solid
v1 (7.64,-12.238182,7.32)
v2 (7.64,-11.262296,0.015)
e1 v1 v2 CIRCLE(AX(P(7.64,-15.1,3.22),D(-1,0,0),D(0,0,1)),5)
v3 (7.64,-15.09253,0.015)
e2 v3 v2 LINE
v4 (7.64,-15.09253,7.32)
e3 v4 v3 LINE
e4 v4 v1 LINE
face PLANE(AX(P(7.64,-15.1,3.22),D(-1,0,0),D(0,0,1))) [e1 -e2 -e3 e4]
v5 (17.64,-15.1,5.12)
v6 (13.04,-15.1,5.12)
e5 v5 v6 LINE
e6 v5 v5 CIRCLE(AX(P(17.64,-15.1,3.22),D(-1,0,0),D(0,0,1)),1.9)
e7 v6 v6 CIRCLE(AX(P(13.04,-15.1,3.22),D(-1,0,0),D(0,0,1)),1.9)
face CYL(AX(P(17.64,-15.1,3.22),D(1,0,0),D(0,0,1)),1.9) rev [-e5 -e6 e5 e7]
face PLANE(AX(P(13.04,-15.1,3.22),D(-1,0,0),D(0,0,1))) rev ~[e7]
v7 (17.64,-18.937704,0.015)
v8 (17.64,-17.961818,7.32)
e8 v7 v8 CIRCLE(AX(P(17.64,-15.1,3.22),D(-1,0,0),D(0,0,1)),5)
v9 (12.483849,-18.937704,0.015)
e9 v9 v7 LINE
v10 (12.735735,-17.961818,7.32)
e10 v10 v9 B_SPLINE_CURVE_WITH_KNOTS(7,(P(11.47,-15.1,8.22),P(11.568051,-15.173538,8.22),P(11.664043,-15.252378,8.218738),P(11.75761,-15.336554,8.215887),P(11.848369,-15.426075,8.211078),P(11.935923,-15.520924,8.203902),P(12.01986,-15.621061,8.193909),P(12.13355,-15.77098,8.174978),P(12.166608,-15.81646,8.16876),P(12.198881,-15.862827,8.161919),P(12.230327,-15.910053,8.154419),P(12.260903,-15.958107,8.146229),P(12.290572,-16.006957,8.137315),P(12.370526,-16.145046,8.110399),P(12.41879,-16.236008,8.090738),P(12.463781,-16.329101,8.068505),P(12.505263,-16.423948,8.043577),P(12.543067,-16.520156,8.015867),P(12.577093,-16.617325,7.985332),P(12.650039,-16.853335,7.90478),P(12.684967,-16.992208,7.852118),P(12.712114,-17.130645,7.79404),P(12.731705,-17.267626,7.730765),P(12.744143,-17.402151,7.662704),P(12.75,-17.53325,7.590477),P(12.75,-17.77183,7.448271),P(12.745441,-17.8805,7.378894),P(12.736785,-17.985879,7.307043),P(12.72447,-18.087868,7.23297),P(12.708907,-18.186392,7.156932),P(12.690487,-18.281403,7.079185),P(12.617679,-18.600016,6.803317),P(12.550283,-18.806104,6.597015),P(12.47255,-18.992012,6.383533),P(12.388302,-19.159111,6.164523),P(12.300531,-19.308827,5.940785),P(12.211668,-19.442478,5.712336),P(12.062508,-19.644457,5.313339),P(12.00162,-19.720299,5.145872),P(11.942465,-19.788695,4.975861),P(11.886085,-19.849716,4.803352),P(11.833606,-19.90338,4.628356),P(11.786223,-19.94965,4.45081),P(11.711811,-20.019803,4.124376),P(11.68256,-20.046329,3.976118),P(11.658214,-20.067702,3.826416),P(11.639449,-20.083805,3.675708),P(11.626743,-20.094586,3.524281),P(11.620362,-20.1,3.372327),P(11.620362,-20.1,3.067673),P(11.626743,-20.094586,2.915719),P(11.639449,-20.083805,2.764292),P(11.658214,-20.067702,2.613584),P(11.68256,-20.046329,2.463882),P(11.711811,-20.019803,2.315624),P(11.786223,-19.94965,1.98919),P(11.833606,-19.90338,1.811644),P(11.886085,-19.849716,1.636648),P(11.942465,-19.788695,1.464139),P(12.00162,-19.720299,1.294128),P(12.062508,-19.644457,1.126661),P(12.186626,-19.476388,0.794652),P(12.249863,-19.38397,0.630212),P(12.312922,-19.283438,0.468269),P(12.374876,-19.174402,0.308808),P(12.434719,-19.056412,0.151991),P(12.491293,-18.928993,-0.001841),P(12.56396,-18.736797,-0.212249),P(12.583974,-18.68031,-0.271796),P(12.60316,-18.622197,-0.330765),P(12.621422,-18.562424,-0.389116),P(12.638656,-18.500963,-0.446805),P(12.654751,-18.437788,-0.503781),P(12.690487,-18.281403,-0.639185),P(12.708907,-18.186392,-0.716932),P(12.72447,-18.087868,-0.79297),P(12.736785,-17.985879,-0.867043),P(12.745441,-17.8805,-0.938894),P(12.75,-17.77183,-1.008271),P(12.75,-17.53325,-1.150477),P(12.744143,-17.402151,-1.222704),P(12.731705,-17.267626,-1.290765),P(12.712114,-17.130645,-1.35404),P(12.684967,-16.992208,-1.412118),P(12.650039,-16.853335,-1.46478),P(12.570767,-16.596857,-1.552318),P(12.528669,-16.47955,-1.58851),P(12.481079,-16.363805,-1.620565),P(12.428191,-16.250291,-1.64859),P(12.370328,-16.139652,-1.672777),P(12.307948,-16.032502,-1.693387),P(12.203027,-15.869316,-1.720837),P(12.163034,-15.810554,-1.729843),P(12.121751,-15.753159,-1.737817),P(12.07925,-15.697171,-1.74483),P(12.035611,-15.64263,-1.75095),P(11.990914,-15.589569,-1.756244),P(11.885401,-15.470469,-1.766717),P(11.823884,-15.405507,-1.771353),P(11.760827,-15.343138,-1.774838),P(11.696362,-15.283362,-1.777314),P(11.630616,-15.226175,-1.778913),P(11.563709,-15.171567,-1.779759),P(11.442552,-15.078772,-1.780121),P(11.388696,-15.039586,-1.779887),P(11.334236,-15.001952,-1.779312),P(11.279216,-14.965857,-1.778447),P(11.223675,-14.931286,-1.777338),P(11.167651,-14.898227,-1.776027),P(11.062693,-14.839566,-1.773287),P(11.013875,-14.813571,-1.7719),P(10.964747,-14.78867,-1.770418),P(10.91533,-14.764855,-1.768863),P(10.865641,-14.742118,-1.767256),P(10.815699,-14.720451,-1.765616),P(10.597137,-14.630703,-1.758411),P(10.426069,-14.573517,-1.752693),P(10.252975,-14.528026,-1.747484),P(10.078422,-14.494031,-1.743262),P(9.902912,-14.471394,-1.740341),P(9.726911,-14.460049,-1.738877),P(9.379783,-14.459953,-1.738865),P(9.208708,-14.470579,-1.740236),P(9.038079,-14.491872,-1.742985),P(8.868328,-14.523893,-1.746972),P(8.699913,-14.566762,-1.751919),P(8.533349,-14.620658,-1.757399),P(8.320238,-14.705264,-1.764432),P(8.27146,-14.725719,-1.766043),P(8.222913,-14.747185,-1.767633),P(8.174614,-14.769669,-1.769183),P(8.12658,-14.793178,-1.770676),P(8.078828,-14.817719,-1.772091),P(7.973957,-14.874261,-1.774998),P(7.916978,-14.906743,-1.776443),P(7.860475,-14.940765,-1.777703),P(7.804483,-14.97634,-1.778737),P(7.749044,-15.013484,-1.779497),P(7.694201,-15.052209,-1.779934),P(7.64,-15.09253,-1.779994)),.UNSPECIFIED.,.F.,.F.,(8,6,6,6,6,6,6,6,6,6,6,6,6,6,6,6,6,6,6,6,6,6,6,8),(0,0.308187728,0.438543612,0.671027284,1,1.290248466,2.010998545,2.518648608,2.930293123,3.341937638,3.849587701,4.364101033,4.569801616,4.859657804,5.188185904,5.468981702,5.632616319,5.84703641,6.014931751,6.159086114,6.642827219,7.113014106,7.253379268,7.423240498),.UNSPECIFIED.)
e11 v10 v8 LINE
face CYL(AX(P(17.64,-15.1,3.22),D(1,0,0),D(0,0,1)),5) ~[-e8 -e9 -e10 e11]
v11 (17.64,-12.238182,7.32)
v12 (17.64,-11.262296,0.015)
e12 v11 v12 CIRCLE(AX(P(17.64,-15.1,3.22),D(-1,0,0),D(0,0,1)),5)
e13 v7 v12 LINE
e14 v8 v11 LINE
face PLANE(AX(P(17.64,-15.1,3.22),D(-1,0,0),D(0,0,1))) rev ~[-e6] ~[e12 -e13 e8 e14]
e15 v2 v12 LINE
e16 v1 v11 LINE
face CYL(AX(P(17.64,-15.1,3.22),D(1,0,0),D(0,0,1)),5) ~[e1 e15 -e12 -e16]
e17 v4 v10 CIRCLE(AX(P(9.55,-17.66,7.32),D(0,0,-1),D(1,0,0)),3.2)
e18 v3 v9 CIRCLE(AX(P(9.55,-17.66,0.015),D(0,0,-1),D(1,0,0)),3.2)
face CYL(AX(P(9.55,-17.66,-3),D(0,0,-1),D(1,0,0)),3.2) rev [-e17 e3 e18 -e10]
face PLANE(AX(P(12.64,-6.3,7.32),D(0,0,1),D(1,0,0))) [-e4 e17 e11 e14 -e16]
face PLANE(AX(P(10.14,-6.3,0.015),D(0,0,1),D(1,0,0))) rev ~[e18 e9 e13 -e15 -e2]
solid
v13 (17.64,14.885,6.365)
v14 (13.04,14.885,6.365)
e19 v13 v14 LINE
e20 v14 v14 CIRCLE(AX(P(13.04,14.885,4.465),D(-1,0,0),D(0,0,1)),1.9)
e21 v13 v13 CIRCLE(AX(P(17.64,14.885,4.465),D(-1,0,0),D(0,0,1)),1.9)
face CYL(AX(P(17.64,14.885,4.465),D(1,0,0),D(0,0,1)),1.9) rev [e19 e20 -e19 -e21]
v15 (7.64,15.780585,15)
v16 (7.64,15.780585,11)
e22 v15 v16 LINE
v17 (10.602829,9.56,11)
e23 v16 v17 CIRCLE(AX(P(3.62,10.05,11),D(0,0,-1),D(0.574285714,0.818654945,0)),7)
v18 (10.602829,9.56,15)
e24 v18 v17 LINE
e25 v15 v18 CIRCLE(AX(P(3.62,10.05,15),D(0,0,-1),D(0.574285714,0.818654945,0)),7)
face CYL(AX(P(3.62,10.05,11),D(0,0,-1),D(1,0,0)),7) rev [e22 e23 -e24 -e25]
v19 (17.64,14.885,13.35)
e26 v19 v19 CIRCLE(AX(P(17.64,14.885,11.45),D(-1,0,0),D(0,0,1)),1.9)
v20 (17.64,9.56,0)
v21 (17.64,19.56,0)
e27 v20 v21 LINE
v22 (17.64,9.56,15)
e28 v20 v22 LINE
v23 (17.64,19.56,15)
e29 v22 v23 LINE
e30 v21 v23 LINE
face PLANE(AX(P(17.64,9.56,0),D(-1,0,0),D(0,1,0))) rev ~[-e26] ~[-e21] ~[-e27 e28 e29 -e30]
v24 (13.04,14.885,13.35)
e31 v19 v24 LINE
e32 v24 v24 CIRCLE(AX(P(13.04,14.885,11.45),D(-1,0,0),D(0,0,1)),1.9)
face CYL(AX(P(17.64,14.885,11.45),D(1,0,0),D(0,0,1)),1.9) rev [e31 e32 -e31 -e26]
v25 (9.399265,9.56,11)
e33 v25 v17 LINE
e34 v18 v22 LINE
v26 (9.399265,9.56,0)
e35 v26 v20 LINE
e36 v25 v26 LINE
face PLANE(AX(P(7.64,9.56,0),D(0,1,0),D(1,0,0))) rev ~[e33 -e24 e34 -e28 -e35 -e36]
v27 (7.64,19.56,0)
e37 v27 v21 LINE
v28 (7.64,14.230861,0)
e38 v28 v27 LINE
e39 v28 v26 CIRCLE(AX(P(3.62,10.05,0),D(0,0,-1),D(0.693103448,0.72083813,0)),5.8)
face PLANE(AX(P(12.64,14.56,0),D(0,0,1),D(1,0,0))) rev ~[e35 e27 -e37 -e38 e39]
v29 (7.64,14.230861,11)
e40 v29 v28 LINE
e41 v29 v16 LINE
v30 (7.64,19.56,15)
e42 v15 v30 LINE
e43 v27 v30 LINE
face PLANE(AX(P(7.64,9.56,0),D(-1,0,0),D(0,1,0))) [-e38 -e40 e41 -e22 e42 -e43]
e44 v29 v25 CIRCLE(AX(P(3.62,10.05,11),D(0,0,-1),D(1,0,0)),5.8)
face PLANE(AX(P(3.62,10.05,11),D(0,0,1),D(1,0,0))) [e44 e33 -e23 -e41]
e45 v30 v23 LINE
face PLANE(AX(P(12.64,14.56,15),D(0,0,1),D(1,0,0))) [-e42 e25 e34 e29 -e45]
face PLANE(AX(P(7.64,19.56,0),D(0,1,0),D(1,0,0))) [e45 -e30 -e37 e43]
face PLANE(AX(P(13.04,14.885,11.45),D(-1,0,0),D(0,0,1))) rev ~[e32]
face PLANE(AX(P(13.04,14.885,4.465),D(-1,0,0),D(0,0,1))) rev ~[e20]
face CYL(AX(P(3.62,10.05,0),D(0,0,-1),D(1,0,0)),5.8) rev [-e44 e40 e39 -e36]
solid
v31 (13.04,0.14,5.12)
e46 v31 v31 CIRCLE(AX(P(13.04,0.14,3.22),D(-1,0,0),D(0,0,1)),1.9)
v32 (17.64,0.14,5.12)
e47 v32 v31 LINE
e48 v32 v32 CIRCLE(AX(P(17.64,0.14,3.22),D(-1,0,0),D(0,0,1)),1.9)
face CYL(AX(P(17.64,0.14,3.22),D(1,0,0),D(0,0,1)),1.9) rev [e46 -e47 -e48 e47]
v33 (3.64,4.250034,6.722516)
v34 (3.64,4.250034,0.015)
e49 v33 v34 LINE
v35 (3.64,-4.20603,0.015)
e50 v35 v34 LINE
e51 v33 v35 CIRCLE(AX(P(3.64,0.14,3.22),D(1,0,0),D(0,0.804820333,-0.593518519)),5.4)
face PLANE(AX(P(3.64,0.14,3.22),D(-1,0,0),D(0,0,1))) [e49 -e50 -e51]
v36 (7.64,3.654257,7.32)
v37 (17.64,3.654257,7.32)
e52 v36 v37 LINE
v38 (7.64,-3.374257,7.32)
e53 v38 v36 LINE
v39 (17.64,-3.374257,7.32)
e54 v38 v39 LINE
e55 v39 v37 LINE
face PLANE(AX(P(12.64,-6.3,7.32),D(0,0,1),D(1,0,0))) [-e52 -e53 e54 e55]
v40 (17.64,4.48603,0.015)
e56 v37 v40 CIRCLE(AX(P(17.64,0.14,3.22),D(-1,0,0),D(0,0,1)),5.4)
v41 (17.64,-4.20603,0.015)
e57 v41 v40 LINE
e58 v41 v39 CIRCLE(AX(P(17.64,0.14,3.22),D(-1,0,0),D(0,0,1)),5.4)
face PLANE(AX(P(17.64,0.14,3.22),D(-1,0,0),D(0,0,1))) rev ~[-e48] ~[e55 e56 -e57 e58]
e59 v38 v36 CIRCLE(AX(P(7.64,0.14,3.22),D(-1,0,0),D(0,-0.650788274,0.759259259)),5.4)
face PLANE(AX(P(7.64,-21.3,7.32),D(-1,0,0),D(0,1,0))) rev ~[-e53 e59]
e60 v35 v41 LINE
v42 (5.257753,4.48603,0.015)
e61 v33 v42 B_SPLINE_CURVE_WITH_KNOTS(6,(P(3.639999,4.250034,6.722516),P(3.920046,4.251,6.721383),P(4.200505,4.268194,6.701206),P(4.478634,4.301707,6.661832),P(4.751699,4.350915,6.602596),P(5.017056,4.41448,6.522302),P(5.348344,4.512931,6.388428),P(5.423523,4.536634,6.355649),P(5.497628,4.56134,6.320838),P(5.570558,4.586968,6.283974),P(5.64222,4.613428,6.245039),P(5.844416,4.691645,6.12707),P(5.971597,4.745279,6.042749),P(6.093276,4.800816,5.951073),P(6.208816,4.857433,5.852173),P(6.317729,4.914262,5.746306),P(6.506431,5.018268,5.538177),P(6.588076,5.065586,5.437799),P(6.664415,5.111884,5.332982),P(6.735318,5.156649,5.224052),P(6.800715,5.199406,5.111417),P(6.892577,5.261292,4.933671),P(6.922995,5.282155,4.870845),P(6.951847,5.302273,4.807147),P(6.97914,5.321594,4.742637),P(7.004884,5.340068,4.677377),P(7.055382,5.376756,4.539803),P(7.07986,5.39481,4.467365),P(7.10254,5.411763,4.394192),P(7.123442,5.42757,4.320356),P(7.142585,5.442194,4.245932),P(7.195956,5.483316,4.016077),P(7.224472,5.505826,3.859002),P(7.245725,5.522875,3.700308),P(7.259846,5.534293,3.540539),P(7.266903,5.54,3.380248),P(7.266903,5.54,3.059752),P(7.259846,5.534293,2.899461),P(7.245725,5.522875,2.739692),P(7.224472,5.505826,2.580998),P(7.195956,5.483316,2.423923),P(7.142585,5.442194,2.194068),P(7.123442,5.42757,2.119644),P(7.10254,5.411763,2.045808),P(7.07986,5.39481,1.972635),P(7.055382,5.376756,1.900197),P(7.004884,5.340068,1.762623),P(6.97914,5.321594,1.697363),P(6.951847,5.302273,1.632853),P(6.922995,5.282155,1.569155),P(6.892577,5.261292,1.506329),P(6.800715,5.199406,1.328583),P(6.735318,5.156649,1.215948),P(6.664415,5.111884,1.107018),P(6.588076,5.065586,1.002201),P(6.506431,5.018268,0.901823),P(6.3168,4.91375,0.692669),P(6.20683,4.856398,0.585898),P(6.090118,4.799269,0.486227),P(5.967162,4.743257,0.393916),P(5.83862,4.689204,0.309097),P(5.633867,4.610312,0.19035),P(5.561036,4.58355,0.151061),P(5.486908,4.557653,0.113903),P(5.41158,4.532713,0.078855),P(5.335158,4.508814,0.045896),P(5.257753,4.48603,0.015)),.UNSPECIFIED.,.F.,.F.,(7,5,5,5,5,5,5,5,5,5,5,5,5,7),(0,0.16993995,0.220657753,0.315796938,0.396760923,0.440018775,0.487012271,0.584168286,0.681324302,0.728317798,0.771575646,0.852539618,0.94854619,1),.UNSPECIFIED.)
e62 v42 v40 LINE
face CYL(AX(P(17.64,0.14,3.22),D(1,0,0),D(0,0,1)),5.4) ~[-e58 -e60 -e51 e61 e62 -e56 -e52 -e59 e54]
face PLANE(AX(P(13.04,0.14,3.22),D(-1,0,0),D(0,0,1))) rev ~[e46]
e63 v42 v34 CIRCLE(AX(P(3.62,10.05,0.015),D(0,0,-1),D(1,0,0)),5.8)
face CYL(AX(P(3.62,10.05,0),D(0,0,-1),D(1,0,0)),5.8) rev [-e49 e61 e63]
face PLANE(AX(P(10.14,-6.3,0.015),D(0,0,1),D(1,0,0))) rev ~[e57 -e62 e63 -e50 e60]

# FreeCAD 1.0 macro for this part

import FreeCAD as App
import Part
import Sketcher


def add_polygon(sketch, points):
    """Adds a closed chain of lines whose ends are joined by coincident constraints."""
    first, n = sketch.GeometryCount, len(points)
    for a, b in zip(points, points[1:] + points[:1]):
        sketch.addGeometry(Part.LineSegment(App.Vector(*a, 0), App.Vector(*b, 0)), False)
    for i in range(n):
        sketch.addConstraint(Sketcher.Constraint("Coincident", first + i, 2, first + (i + 1) % n, 1))

doc = App.newDocument("Part")
body = doc.addObject("PartDesign::Body", "Body")

# Sketch on YZ plane
sketch1 = body.newObject("Sketcher::SketchObject", "Sketch")
sketch1.AttachmentSupport = (doc.getObject("YZ_Plane"), [""])
sketch1.MapMode = "FlatFace"
sketch1.AttachmentOffset = App.Placement(App.Vector(0, 0, 17.64), App.Rotation())
sketch1.addGeometry(Part.Circle(App.Vector(14.9, 11.4, 0), App.Vector(0, 0, 1), 1.9), False)
sketch1.addConstraint(Sketcher.Constraint("Diameter", 0, 3.8))
sketch1.addConstraint(Sketcher.Constraint("DistanceY", -1, 1, 0, 3, 11.45))
sketch1.addConstraint(Sketcher.Constraint("DistanceX", -1, 1, 0, 3, 14.885))
pad1 = body.newObject("PartDesign::Pad", "Pad")
pad1.Profile = sketch1
pad1.Length = 4.6
pad1.Reversed = True
body2 = doc.addObject("PartDesign::Body", "Body001")

# Sketch on YZ plane
sketch2 = body2.newObject("Sketcher::SketchObject", "Sketch001")
sketch2.AttachmentSupport = (doc.getObject("YZ_Plane001"), [""])
sketch2.MapMode = "FlatFace"
sketch2.AttachmentOffset = App.Placement(App.Vector(0, 0, 17.64), App.Rotation())
sketch2.addGeometry(Part.Circle(App.Vector(0.1, 3.2, 0), App.Vector(0, 0, 1), 1.9), False)
sketch2.addConstraint(Sketcher.Constraint("Diameter", 0, 3.8))
sketch2.addConstraint(Sketcher.Constraint("DistanceX", -1, 1, 0, 3, 0.14))
sketch2.addConstraint(Sketcher.Constraint("DistanceY", -1, 1, 0, 3, 3.22))
pad2 = body2.newObject("PartDesign::Pad", "Pad001")
pad2.Profile = sketch2
pad2.Length = 4.6
pad2.Reversed = True
body3 = doc.addObject("PartDesign::Body", "Body002")

# Sketch on YZ plane
sketch3 = body3.newObject("Sketcher::SketchObject", "Sketch002")
sketch3.AttachmentSupport = (doc.getObject("YZ_Plane002"), [""])
sketch3.MapMode = "FlatFace"
sketch3.AttachmentOffset = App.Placement(App.Vector(0, 0, 17.64), App.Rotation())
sketch3.addGeometry(Part.Circle(App.Vector(14.9, 4.5, 0), App.Vector(0, 0, 1), 1.9), False)
sketch3.addConstraint(Sketcher.Constraint("Diameter", 0, 3.8))
sketch3.addConstraint(Sketcher.Constraint("DistanceX", -1, 1, 0, 3, 14.885))
sketch3.addConstraint(Sketcher.Constraint("DistanceY", -1, 1, 0, 3, 4.465))
pad3 = body3.newObject("PartDesign::Pad", "Pad002")
pad3.Profile = sketch3
pad3.Length = 4.6
pad3.Reversed = True
body4 = doc.addObject("PartDesign::Body", "Body003")

# Sketch on YZ plane
sketch4 = body4.newObject("Sketcher::SketchObject", "Sketch003")
sketch4.AttachmentSupport = (doc.getObject("YZ_Plane003"), [""])
sketch4.MapMode = "FlatFace"
sketch4.AttachmentOffset = App.Placement(App.Vector(0, 0, 17.64), App.Rotation())
sketch4.addGeometry(Part.Circle(App.Vector(-15.1, 3.2, 0), App.Vector(0, 0, 1), 1.9), False)
sketch4.addConstraint(Sketcher.Constraint("Diameter", 0, 3.8))
sketch4.addConstraint(Sketcher.Constraint("DistanceX", 0, 3, -1, 1, 15.1))
sketch4.addConstraint(Sketcher.Constraint("DistanceY", -1, 1, 0, 3, 3.22))
pad4 = body4.newObject("PartDesign::Pad", "Pad003")
pad4.Profile = sketch4
pad4.Length = 4.6
pad4.Reversed = True
body5 = doc.addObject("PartDesign::Body", "Body004")

# Sketch on XY plane
sketch5 = body5.newObject("Sketcher::SketchObject", "Sketch004")
sketch5.AttachmentSupport = (doc.getObject("XY_Plane004"), [""])
sketch5.MapMode = "FlatFace"
sketch5.AttachmentOffset = App.Placement(App.Vector(0, 0, 11), App.Rotation())
sketch5.addGeometry(Part.Circle(App.Vector(4, 10, 0), App.Vector(0, 0, 1), 7), False)
sketch5.addConstraint(Sketcher.Constraint("Diameter", 0, 14.0))
sketch5.addConstraint(Sketcher.Constraint("DistanceX", -1, 1, 0, 3, 3.62))
sketch5.addConstraint(Sketcher.Constraint("DistanceY", -1, 1, 0, 3, 10.05))
pad5 = body5.newObject("PartDesign::Pad", "Pad004")
pad5.Profile = sketch5
pad5.Length = 5
body6 = doc.addObject("PartDesign::Body", "Body005")

# Sketch on XY plane
sketch6 = body6.newObject("Sketcher::SketchObject", "Sketch005")
sketch6.AttachmentSupport = (doc.getObject("XY_Plane005"), [""])
sketch6.MapMode = "FlatFace"
sketch6.addGeometry(Part.Circle(App.Vector(4, 10, 0), App.Vector(0, 0, 1), 6), False)
sketch6.addConstraint(Sketcher.Constraint("Diameter", 0, 11.6))
sketch6.addConstraint(Sketcher.Constraint("DistanceX", -1, 1, 0, 3, 3.62))
sketch6.addConstraint(Sketcher.Constraint("DistanceY", -1, 1, 0, 3, 10.05))
pad6 = body6.newObject("PartDesign::Pad", "Pad005")
pad6.Profile = sketch6
pad6.Length = 11.5
body7 = doc.addObject("PartDesign::Body", "Body006")

# Sketch on XY plane
sketch7 = body7.newObject("Sketcher::SketchObject", "Sketch006")
sketch7.AttachmentSupport = (doc.getObject("XY_Plane006"), [""])
sketch7.MapMode = "FlatFace"
sketch7.AttachmentOffset = App.Placement(App.Vector(0, 0, -9.985), App.Rotation())
add_polygon(sketch7, [(3, 9), (3, -21), (18, -21), (18, 9)])  # lines 0-3
sketch7.addConstraint(Sketcher.Constraint("Vertical", 0))
sketch7.addConstraint(Sketcher.Constraint("Horizontal", 1))
sketch7.addConstraint(Sketcher.Constraint("Vertical", 2))
sketch7.addConstraint(Sketcher.Constraint("Horizontal", 3))
sketch7.addConstraint(Sketcher.Constraint("DistanceX", 1, 1, 1, 2, 15.0))
sketch7.addConstraint(Sketcher.Constraint("DistanceY", 0, 2, 0, 1, 30.0))
sketch7.addConstraint(Sketcher.Constraint("DistanceY", 0, 2, -1, 1, 21.3))
sketch7.addConstraint(Sketcher.Constraint("DistanceX", -1, 1, 0, 2, 2.64))
pad7 = body7.newObject("PartDesign::Pad", "Pad006")
pad7.Profile = sketch7
pad7.Length = 10
body8 = doc.addObject("PartDesign::Body", "Body007")

# Sketch on XY plane
sketch8 = body8.newObject("Sketcher::SketchObject", "Sketch007")
sketch8.AttachmentSupport = (doc.getObject("XY_Plane007"), [""])
sketch8.MapMode = "FlatFace"
sketch8.AttachmentOffset = App.Placement(App.Vector(0, 0, 7.32), App.Rotation())
add_polygon(sketch8, [(8, 9), (8, -21), (18, -21), (18, 9)])  # lines 0-3
sketch8.addConstraint(Sketcher.Constraint("Vertical", 0))
sketch8.addConstraint(Sketcher.Constraint("Horizontal", 1))
sketch8.addConstraint(Sketcher.Constraint("Vertical", 2))
sketch8.addConstraint(Sketcher.Constraint("Horizontal", 3))
sketch8.addConstraint(Sketcher.Constraint("DistanceX", 1, 1, 1, 2, 10.0))
sketch8.addConstraint(Sketcher.Constraint("DistanceY", 0, 2, 0, 1, 30.0))
sketch8.addConstraint(Sketcher.Constraint("DistanceY", 0, 2, -1, 1, 21.3))
sketch8.addConstraint(Sketcher.Constraint("DistanceX", -1, 1, 0, 2, 7.64))
pad8 = body8.newObject("PartDesign::Pad", "Pad007")
pad8.Profile = sketch8
pad8.Length = 10
body9 = doc.addObject("PartDesign::Body", "Body008")

# Sketch on XY plane
sketch9 = body9.newObject("Sketcher::SketchObject", "Sketch008")
sketch9.AttachmentSupport = (doc.getObject("XY_Plane008"), [""])
sketch9.MapMode = "FlatFace"
sketch9.AttachmentOffset = App.Placement(App.Vector(0, 0, -3), App.Rotation())
sketch9.addGeometry(Part.Circle(App.Vector(9.6, -17.7, 0), App.Vector(0, 0, 1), 3.2), False)
sketch9.addConstraint(Sketcher.Constraint("Diameter", 0, 6.4))
sketch9.addConstraint(Sketcher.Constraint("DistanceX", -1, 1, 0, 3, 9.55))
sketch9.addConstraint(Sketcher.Constraint("DistanceY", 0, 3, -1, 1, 17.66))
pad9 = body9.newObject("PartDesign::Pad", "Pad008")
pad9.Profile = sketch9
pad9.Length = 12
body10 = doc.addObject("PartDesign::Body", "Body009")

# Sketch on YZ plane
sketch10 = body10.newObject("Sketcher::SketchObject", "Sketch009")
sketch10.AttachmentSupport = (doc.getObject("YZ_Plane009"), [""])
sketch10.MapMode = "FlatFace"
sketch10.AttachmentOffset = App.Placement(App.Vector(0, 0, 17.64), App.Rotation())
sketch10.addGeometry(Part.Circle(App.Vector(0, 3, 0), App.Vector(0, 0, 1), 5), False)
sketch10.addConstraint(Sketcher.Constraint("Diameter", 0, 10.8))
sketch10.addConstraint(Sketcher.Constraint("DistanceX", -1, 1, 0, 3, 0.14))
sketch10.addConstraint(Sketcher.Constraint("DistanceY", -1, 1, 0, 3, 3.22))
pad10 = body10.newObject("PartDesign::Pad", "Pad009")
pad10.Profile = sketch10
pad10.Length = 14
pad10.Reversed = True
body11 = doc.addObject("PartDesign::Body", "Body010")
body11.AllowCompound = True

# Sketch on YZ plane
sketch11 = body11.newObject("Sketcher::SketchObject", "Sketch010")
sketch11.AttachmentSupport = (doc.getObject("YZ_Plane010"), [""])
sketch11.MapMode = "FlatFace"
sketch11.AttachmentOffset = App.Placement(App.Vector(0, 0, 17.64), App.Rotation())
sketch11.addGeometry(Part.Circle(App.Vector(-15, 3, 0), App.Vector(0, 0, 1), 5), False)
sketch11.addConstraint(Sketcher.Constraint("Diameter", 0, 10.0))
sketch11.addConstraint(Sketcher.Constraint("DistanceX", 0, 3, -1, 1, 15.1))
sketch11.addConstraint(Sketcher.Constraint("DistanceY", -1, 1, 0, 3, 3.22))
pad11 = body11.newObject("PartDesign::Pad", "Pad010")
pad11.Profile = sketch11
pad11.Length = 10
pad11.Reversed = True
doc.recompute()

boolean = body11.newObject("PartDesign::Boolean", "Boolean")
boolean.Type = "Fuse"
boolean.addObjects([body10])
body12 = doc.addObject("PartDesign::Body", "Body011")
body12.AllowCompound = True

# Sketch on XY plane
sketch12 = body12.newObject("Sketcher::SketchObject", "Sketch011")
sketch12.AttachmentSupport = (doc.getObject("XY_Plane011"), [""])
sketch12.MapMode = "FlatFace"
add_polygon(sketch12, [(8, 20), (8, 10), (18, 10), (18, 20)])  # lines 0-3
sketch12.addConstraint(Sketcher.Constraint("Vertical", 0))
sketch12.addConstraint(Sketcher.Constraint("Horizontal", 1))
sketch12.addConstraint(Sketcher.Constraint("Vertical", 2))
sketch12.addConstraint(Sketcher.Constraint("Horizontal", 3))
sketch12.addConstraint(Sketcher.Constraint("Equal", 3, 0))
sketch12.addConstraint(Sketcher.Constraint("DistanceX", 1, 1, 1, 2, 10.0))
sketch12.addConstraint(Sketcher.Constraint("DistanceX", -1, 1, 0, 2, 7.64))
sketch12.addConstraint(Sketcher.Constraint("DistanceY", -1, 1, 0, 2, 9.56))
pad12 = body12.newObject("PartDesign::Pad", "Pad011")
pad12.Profile = sketch12
pad12.Length = 15
doc.recompute()

boolean2 = body12.newObject("PartDesign::Boolean", "Boolean001")
boolean2.Type = "Fuse"
boolean2.addObjects([body11])
doc.recompute()

boolean3 = body12.newObject("PartDesign::Boolean", "Boolean002")
boolean3.Type = "Cut"
boolean3.addObjects([body9])
doc.recompute()

boolean4 = body12.newObject("PartDesign::Boolean", "Boolean003")
boolean4.Type = "Cut"
boolean4.addObjects([body8])
doc.recompute()

boolean5 = body12.newObject("PartDesign::Boolean", "Boolean004")
boolean5.Type = "Cut"
boolean5.addObjects([body7])
doc.recompute()

boolean6 = body12.newObject("PartDesign::Boolean", "Boolean005")
boolean6.Type = "Cut"
boolean6.addObjects([body6])
doc.recompute()

boolean7 = body12.newObject("PartDesign::Boolean", "Boolean006")
boolean7.Type = "Cut"
boolean7.addObjects([body5])
doc.recompute()

boolean8 = body12.newObject("PartDesign::Boolean", "Boolean007")
boolean8.Type = "Cut"
boolean8.addObjects([body4])
doc.recompute()

boolean9 = body12.newObject("PartDesign::Boolean", "Boolean008")
boolean9.Type = "Cut"
boolean9.addObjects([body3])
doc.recompute()

boolean10 = body12.newObject("PartDesign::Boolean", "Boolean009")
boolean10.Type = "Cut"
boolean10.addObjects([body2])
doc.recompute()

boolean11 = body12.newObject("PartDesign::Boolean", "Boolean010")
boolean11.Type = "Cut"
boolean11.addObjects([body])

doc.recompute()
